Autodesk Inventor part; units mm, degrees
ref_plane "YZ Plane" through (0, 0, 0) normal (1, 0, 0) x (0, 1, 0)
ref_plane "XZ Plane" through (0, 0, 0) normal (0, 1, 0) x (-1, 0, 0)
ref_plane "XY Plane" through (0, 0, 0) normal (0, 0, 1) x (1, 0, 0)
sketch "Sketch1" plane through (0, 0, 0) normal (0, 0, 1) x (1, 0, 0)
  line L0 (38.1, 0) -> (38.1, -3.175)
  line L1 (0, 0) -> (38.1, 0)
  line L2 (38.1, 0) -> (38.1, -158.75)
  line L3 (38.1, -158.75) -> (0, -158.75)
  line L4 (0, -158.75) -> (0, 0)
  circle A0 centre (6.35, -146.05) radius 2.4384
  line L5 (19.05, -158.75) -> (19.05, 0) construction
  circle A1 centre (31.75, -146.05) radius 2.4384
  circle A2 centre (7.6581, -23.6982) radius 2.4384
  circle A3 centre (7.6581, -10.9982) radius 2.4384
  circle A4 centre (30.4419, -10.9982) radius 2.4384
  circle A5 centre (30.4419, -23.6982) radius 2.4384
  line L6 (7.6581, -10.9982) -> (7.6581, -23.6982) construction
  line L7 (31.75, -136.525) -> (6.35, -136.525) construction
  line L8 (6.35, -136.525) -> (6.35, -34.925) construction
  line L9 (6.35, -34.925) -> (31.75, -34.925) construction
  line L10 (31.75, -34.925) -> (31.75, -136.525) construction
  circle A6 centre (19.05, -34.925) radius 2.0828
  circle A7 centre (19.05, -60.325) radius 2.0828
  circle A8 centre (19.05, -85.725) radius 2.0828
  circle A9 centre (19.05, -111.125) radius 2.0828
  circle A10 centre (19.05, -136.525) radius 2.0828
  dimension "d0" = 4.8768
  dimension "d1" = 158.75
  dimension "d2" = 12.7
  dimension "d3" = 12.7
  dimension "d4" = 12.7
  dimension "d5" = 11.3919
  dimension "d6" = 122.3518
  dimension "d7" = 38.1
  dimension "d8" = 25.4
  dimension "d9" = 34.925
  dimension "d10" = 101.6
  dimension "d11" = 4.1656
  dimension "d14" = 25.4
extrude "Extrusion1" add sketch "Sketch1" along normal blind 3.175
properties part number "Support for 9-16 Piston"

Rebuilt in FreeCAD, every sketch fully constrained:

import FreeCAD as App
import Part
import Sketcher
from FreeCAD import Vector
Q = App.Units.Quantity

doc = App.newDocument("Part")
body = doc.addObject("PartDesign::Body", "Body")

# Sketch on XY plane
sketch1 = body.newObject("Sketcher::SketchObject", "Sketch")
sketch1.AttachmentSupport = (doc.getObject("XY_Plane"), [""])
sketch1.MapMode = "FlatFace"
sketch1.addGeometry([
    Part.LineSegment(Vector(38.1, -158.8, 0), Vector(38.1, 0, 0)),  # 0
    Part.LineSegment(Vector(38.1, 0, 0), Vector(0, 0, 0)),  # 1
    Part.LineSegment(Vector(0, 0, 0), Vector(0, -158.8, 0)),  # 2
    Part.LineSegment(Vector(0, -158.8, 0), Vector(38.1, -158.8, 0)),  # 3
    Part.Circle(Vector(6.3, -146.1, 0), Vector(0, 0, 1), 2.4),  # 4
    Part.Circle(Vector(19.1, -136.5, 0), Vector(0, 0, 1), 2.1),  # 5
    Part.Circle(Vector(31.8, -146.1, 0), Vector(0, 0, 1), 2.4),  # 6
    Part.Circle(Vector(19.1, -111.1, 0), Vector(0, 0, 1), 2.1),  # 7
    Part.Circle(Vector(19.1, -85.7, 0), Vector(0, 0, 1), 2.1),  # 8
    Part.Circle(Vector(7.7, -23.7, 0), Vector(0, 0, 1), 2.4),  # 9
    Part.Circle(Vector(7.7, -11, 0), Vector(0, 0, 1), 2.4),  # 10
    Part.Circle(Vector(19.1, -60.3, 0), Vector(0, 0, 1), 2.1),  # 11
    Part.Circle(Vector(19.1, -34.9, 0), Vector(0, 0, 1), 2.1),  # 12
    Part.Circle(Vector(30.4, -23.7, 0), Vector(0, 0, 1), 2.4),  # 13
    Part.Circle(Vector(30.4, -11, 0), Vector(0, 0, 1), 2.4),  # 14
], False)
sketch1.addConstraint([
    Sketcher.Constraint("Coincident", 0, 2, 1, 1),
    Sketcher.Constraint("Coincident", 1, 2, 2, 1),
    Sketcher.Constraint("Coincident", 2, 2, 3, 1),
    Sketcher.Constraint("Coincident", 3, 2, 0, 1),
    Sketcher.Constraint("Vertical", 0),
    Sketcher.Constraint("Horizontal", 1),
    Sketcher.Constraint("Vertical", 2),
    Sketcher.Constraint("Horizontal", 3),
    Sketcher.Constraint("Coincident", 1, 2, -1, 1),
    Sketcher.Constraint("Equal", 4, 6),
    Sketcher.Constraint("Equal", 5, 7),
    Sketcher.Constraint("Equal", 7, 8),
    Sketcher.Constraint("Equal", 6, 9),
    Sketcher.Constraint("Equal", 9, 10),
    Sketcher.Constraint("Equal", 8, 11),
    Sketcher.Constraint("Equal", 11, 12),
    Sketcher.Constraint("Equal", 10, 13),
    Sketcher.Constraint("Equal", 13, 14),
    Sketcher.Constraint("Horizontal", 4, 3, 6, 3),
    Sketcher.Constraint("Horizontal", 9, 3, 13, 3),
    Sketcher.Constraint("Horizontal", 10, 3, 14, 3),
    Sketcher.Constraint("Vertical", 5, 3, 7, 3),
    Sketcher.Constraint("Vertical", 7, 3, 8, 3),
    Sketcher.Constraint("Vertical", 9, 3, 10, 3),
    Sketcher.Constraint("Vertical", 8, 3, 11, 3),
    Sketcher.Constraint("Vertical", 11, 3, 12, 3),
    Sketcher.Constraint("Vertical", 13, 3, 14, 3),
    Sketcher.Constraint("Diameter", 4, Q("0.192 in")),
    Sketcher.Constraint("Diameter", 5, Q("0.164 in")),
    Sketcher.Constraint("DistanceX", 1, 2, 1, 1, Q("1.5 in")),
    Sketcher.Constraint("DistanceX", 4, 3, 6, 3, Q("1 in")),
    Sketcher.Constraint("DistanceY", 5, 3, 7, 3, Q("1 in")),
    Sketcher.Constraint("DistanceY", 7, 3, 8, 3, Q("1 in")),
    Sketcher.Constraint("DistanceY", 8, 3, 11, 3, Q("1 in")),
    Sketcher.Constraint("DistanceY", 11, 3, 12, 3, Q("1 in")),
    Sketcher.Constraint("DistanceY", 0, 1, 0, 2, Q("6.25 in")),
    Sketcher.Constraint("DistanceX", 4, 3, 5, 3, Q("0.5 in")),
    Sketcher.Constraint("DistanceY", 9, 3, 10, 3, Q("0.5 in")),
    Sketcher.Constraint("DistanceY", 2, 2, 4, 3, Q("0.5 in")),
    Sketcher.Constraint("DistanceY", 12, 3, -1, 1, Q("1.375 in")),
    Sketcher.Constraint("DistanceY", 4, 3, 9, 3, Q("4.817 in")),
    Sketcher.Constraint("DistanceX", 9, 3, 8, 3, Q("0.4485 in")),
    Sketcher.Constraint("DistanceX", 12, 3, 13, 3, Q("0.4485 in")),
    Sketcher.Constraint("DistanceX", -1, 1, 4, 3, Q("0.25 in")),
])
pad1 = body.newObject("PartDesign::Pad", "Pad")
pad1.Profile = sketch1
pad1.Length = Q("0.125 in")

doc.recompute()
